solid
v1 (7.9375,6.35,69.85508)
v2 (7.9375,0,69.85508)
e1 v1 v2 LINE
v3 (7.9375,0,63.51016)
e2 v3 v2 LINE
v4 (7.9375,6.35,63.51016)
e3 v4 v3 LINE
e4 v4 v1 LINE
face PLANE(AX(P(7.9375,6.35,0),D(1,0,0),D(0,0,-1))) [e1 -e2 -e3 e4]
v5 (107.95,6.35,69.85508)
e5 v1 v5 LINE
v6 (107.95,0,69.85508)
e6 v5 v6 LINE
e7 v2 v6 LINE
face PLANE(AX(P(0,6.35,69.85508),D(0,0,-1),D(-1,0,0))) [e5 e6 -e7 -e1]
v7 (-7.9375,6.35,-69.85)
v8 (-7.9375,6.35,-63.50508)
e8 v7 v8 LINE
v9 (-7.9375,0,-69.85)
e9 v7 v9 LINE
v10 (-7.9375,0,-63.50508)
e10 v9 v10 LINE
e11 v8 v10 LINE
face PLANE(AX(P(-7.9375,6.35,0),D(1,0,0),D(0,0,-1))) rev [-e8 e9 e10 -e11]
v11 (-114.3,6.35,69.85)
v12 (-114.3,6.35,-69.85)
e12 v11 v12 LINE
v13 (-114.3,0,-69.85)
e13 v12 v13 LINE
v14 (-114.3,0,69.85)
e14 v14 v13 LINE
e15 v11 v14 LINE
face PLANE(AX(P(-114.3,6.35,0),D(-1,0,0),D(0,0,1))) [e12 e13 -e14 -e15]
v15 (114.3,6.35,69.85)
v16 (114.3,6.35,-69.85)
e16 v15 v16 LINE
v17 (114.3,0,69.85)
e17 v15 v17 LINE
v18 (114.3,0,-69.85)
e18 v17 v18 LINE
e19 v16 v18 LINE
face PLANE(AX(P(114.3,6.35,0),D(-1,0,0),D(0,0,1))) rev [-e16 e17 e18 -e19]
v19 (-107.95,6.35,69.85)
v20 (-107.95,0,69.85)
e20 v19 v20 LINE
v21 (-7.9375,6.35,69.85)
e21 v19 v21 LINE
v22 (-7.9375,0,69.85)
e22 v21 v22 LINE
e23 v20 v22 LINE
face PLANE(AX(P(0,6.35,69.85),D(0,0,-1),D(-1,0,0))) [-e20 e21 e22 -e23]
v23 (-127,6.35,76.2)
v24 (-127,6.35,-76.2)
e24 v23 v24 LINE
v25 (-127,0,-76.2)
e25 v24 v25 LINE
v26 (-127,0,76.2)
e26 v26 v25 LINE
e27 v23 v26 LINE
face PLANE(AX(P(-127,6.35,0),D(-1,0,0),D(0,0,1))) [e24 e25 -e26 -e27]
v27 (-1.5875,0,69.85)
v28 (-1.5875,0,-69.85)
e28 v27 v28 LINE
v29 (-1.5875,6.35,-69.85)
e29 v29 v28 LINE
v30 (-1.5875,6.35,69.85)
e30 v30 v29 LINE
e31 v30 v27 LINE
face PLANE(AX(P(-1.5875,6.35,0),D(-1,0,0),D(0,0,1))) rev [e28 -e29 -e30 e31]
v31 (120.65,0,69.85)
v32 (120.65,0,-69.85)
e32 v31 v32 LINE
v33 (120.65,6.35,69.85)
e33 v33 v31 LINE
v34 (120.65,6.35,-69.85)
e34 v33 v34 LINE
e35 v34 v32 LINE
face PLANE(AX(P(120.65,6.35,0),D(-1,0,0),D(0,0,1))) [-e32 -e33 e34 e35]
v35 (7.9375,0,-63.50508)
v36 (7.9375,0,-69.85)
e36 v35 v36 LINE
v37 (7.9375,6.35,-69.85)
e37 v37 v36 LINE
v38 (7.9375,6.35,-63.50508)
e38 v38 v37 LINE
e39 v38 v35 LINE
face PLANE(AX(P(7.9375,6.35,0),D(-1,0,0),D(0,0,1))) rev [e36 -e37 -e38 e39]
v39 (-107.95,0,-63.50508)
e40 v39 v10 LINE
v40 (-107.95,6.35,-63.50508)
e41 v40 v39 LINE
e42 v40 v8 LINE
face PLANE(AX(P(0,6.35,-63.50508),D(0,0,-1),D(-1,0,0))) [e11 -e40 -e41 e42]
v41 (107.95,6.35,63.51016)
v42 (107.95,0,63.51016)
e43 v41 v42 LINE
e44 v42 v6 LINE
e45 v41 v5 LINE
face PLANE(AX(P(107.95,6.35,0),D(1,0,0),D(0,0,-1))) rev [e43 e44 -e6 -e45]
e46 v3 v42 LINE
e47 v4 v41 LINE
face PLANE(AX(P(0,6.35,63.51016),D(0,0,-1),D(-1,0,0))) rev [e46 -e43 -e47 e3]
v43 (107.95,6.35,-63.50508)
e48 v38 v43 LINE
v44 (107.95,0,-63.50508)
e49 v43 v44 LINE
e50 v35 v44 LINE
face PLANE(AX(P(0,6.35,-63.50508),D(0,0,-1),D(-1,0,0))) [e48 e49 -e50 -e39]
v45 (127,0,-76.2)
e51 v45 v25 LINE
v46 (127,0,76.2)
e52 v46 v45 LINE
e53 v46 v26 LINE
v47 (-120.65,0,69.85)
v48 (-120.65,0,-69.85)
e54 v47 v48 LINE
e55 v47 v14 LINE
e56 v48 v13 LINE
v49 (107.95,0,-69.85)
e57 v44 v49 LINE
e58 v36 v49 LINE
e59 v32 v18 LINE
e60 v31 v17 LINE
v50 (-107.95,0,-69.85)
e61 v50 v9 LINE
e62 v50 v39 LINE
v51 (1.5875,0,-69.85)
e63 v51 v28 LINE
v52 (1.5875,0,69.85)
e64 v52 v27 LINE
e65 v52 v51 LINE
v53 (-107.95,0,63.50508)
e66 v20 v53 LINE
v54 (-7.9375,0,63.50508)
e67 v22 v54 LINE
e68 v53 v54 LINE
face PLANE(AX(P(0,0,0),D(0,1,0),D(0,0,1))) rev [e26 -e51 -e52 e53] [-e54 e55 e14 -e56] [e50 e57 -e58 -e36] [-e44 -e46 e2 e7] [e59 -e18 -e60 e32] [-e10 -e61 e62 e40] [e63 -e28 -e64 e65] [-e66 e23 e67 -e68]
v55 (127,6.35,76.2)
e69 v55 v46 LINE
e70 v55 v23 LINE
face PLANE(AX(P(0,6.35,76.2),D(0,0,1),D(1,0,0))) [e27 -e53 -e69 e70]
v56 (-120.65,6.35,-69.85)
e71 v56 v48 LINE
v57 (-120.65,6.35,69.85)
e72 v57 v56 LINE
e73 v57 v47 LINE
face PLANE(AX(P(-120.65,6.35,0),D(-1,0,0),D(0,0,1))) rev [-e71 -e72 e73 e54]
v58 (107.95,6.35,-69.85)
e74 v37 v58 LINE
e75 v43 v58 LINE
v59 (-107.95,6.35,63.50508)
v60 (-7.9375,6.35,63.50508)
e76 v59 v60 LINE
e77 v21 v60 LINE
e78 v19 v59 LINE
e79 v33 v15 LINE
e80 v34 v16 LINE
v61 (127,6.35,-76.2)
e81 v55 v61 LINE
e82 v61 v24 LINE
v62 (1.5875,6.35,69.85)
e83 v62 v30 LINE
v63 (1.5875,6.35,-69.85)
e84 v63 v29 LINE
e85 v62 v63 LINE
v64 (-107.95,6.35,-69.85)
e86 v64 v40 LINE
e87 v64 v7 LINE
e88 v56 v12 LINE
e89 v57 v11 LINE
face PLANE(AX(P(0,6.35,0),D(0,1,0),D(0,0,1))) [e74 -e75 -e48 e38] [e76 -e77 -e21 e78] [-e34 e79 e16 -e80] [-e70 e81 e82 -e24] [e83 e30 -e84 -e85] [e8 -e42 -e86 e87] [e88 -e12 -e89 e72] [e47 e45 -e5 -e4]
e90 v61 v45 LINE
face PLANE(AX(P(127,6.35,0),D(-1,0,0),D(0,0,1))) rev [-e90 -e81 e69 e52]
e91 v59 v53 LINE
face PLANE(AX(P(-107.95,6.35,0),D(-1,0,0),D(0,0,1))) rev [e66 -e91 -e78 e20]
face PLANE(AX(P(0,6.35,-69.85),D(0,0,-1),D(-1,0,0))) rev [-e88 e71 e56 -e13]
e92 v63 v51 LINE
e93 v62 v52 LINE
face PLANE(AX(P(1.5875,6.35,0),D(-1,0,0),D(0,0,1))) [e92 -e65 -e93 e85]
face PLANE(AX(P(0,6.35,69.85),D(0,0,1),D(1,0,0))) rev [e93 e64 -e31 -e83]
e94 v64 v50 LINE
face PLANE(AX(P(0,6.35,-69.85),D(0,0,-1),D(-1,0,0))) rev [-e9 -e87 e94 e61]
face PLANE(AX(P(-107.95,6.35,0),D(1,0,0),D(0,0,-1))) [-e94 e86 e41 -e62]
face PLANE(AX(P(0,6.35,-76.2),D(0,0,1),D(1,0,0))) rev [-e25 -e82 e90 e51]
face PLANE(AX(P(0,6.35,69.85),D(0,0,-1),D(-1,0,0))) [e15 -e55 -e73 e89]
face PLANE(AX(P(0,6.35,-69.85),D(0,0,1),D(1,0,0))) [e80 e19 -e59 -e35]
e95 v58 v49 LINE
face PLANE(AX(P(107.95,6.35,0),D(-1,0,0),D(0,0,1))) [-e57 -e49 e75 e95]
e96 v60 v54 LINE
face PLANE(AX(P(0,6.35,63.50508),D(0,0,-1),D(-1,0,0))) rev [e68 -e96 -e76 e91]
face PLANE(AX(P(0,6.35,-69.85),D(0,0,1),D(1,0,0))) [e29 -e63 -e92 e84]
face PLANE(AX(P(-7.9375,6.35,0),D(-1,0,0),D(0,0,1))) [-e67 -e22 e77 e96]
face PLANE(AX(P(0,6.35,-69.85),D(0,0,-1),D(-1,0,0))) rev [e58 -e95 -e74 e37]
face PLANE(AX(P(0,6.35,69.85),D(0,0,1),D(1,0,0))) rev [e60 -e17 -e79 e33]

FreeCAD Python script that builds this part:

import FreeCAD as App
import Part
import Sketcher
from FreeCAD import Vector
Q = App.Units.Quantity


def add_polygon(sketch, points):
    """Adds a closed chain of lines whose ends are joined by coincident constraints."""
    first, n = sketch.GeometryCount, len(points)
    for a, b in zip(points, points[1:] + points[:1]):
        sketch.addGeometry(Part.LineSegment(App.Vector(*a, 0), App.Vector(*b, 0)), False)
    for i in range(n):
        sketch.addConstraint(Sketcher.Constraint("Coincident", first + i, 2, first + (i + 1) % n, 1))

doc = App.newDocument("Part")
body = doc.addObject("PartDesign::Body", "Body")

sketch1 = body.newObject("Sketcher::SketchObject", "Sketch")
sketch1.AttachmentSupport = (doc.getObject("XZ_Plane"), [""])
sketch1.MapMode = "FlatFace"
add_polygon(sketch1, [(-127, -76.2), (-127, 76.2), (127, 76.2), (127, -76.2)])
add_polygon(sketch1, [(-7.9375, 69.85), (-107.95, 69.85), (-107.95, 63.50508), (-7.9375, 63.50508)])
add_polygon(sketch1, [(107.95, 69.85508), (7.9375, 69.85508), (7.9375, 63.51016), (107.95, 63.51016)])
add_polygon(sketch1, [(-114.3, 69.85), (-120.65, 69.85), (-120.65, -69.85), (-114.3, -69.85)])
add_polygon(sketch1, [(-7.9375, -63.50508), (-107.95, -63.50508), (-107.95, -69.85), (-7.9375, -69.85)])
add_polygon(sketch1, [(1.5875, 69.85), (-1.5875, 69.85), (-1.5875, -69.85), (1.5875, -69.85)])
add_polygon(sketch1, [(120.65, 69.85), (114.3, 69.85), (114.3, -69.85), (120.65, -69.85)])
add_polygon(sketch1, [(107.95, -63.50508), (7.9375, -63.50508), (7.9375, -69.85), (107.95, -69.85)])
sketch1.addConstraint([
    Sketcher.Constraint("Vertical", 0),
    Sketcher.Constraint("Horizontal", 1),
    Sketcher.Constraint("Vertical", 2),
    Sketcher.Constraint("Horizontal", 3),
    Sketcher.Constraint("Horizontal", 4),
    Sketcher.Constraint("Vertical", 5),
    Sketcher.Constraint("Horizontal", 6),
    Sketcher.Constraint("Vertical", 7),
    Sketcher.Constraint("Horizontal", 8),
    Sketcher.Constraint("Vertical", 9),
    Sketcher.Constraint("Horizontal", 10),
    Sketcher.Constraint("Vertical", 11),
    Sketcher.Constraint("Horizontal", 12),
    Sketcher.Constraint("Vertical", 13),
    Sketcher.Constraint("Horizontal", 14),
    Sketcher.Constraint("Vertical", 15),
    Sketcher.Constraint("Horizontal", 16),
    Sketcher.Constraint("Vertical", 17),
    Sketcher.Constraint("Horizontal", 18),
    Sketcher.Constraint("Vertical", 19),
    Sketcher.Constraint("Horizontal", 20),
    Sketcher.Constraint("Vertical", 21),
    Sketcher.Constraint("Horizontal", 22),
    Sketcher.Constraint("Vertical", 23),
    Sketcher.Constraint("Horizontal", 24),
    Sketcher.Constraint("Vertical", 25),
    Sketcher.Constraint("Horizontal", 26),
    Sketcher.Constraint("Vertical", 27),
    Sketcher.Constraint("Horizontal", 28),
    Sketcher.Constraint("Vertical", 29),
    Sketcher.Constraint("Horizontal", 30),
    Sketcher.Constraint("Vertical", 31),
    Sketcher.Constraint("Symmetric", 0, 2, 2, 2, -1, 1),
    Sketcher.Constraint("Symmetric", 20, 2, 22, 2, -1, 1),
    Sketcher.Constraint("Symmetric", 14, 2, 24, 2, -1, 1),
    Sketcher.Constraint("Symmetric", 12, 2, 26, 2, -1, 1),
    Sketcher.Constraint("Symmetric", 6, 2, 28, 2, -1, 1),
    Sketcher.Constraint("Symmetric", 4, 2, 30, 2, -1, 1),
    Sketcher.Constraint("Symmetric", 19, 2, 28, 2, -2),
    Sketcher.Constraint("Symmetric", 17, 2, 30, 2, -2),
    Sketcher.Constraint("Horizontal", 7, 2, 12, 2),
    Sketcher.Constraint("Horizontal", 14, 2, 17, 2),
    Sketcher.Constraint("Horizontal", 15, 2, 20, 2),
    Sketcher.Constraint("Vertical", 9, 2, 28, 2),
    Sketcher.Constraint("Vertical", 11, 2, 30, 2),
    Sketcher.Constraint("Equal", 7, 9),
    Sketcher.Constraint("DistanceX", 1, 1, 1, 2, Q("10 in")),
    Sketcher.Constraint("DistanceY", 0, 1, 0, 2, Q("6 in")),
    Sketcher.Constraint("DistanceY", 13, 2, 13, 1, Q("5.5 in")),
    Sketcher.Constraint("DistanceX", 12, 2, 12, 1, Q("0.25 in")),
    Sketcher.Constraint("DistanceX", 14, 2, -1, 1, Q("4.5 in")),
    Sketcher.Constraint("DistanceX", 12, 2, 4, 2, Q("0.5 in")),
    Sketcher.Constraint("DistanceX", 4, 2, 4, 1, Q("3.9375 in")),
    Sketcher.Constraint("DistanceX", 20, 2, 20, 1, Q("0.125 in")),
    Sketcher.Constraint("DistanceY", 6, 2, 8, 2, Q("0.25 in")),
    Sketcher.Constraint("DistanceY", 5, 2, 5, 1, Q("0.2498 in")),
])
pad1 = body.newObject("PartDesign::Pad", "Pad")
pad1.Profile = sketch1
pad1.Length = Q("0.25 in")
pad1.Reversed = True

doc.recompute()
